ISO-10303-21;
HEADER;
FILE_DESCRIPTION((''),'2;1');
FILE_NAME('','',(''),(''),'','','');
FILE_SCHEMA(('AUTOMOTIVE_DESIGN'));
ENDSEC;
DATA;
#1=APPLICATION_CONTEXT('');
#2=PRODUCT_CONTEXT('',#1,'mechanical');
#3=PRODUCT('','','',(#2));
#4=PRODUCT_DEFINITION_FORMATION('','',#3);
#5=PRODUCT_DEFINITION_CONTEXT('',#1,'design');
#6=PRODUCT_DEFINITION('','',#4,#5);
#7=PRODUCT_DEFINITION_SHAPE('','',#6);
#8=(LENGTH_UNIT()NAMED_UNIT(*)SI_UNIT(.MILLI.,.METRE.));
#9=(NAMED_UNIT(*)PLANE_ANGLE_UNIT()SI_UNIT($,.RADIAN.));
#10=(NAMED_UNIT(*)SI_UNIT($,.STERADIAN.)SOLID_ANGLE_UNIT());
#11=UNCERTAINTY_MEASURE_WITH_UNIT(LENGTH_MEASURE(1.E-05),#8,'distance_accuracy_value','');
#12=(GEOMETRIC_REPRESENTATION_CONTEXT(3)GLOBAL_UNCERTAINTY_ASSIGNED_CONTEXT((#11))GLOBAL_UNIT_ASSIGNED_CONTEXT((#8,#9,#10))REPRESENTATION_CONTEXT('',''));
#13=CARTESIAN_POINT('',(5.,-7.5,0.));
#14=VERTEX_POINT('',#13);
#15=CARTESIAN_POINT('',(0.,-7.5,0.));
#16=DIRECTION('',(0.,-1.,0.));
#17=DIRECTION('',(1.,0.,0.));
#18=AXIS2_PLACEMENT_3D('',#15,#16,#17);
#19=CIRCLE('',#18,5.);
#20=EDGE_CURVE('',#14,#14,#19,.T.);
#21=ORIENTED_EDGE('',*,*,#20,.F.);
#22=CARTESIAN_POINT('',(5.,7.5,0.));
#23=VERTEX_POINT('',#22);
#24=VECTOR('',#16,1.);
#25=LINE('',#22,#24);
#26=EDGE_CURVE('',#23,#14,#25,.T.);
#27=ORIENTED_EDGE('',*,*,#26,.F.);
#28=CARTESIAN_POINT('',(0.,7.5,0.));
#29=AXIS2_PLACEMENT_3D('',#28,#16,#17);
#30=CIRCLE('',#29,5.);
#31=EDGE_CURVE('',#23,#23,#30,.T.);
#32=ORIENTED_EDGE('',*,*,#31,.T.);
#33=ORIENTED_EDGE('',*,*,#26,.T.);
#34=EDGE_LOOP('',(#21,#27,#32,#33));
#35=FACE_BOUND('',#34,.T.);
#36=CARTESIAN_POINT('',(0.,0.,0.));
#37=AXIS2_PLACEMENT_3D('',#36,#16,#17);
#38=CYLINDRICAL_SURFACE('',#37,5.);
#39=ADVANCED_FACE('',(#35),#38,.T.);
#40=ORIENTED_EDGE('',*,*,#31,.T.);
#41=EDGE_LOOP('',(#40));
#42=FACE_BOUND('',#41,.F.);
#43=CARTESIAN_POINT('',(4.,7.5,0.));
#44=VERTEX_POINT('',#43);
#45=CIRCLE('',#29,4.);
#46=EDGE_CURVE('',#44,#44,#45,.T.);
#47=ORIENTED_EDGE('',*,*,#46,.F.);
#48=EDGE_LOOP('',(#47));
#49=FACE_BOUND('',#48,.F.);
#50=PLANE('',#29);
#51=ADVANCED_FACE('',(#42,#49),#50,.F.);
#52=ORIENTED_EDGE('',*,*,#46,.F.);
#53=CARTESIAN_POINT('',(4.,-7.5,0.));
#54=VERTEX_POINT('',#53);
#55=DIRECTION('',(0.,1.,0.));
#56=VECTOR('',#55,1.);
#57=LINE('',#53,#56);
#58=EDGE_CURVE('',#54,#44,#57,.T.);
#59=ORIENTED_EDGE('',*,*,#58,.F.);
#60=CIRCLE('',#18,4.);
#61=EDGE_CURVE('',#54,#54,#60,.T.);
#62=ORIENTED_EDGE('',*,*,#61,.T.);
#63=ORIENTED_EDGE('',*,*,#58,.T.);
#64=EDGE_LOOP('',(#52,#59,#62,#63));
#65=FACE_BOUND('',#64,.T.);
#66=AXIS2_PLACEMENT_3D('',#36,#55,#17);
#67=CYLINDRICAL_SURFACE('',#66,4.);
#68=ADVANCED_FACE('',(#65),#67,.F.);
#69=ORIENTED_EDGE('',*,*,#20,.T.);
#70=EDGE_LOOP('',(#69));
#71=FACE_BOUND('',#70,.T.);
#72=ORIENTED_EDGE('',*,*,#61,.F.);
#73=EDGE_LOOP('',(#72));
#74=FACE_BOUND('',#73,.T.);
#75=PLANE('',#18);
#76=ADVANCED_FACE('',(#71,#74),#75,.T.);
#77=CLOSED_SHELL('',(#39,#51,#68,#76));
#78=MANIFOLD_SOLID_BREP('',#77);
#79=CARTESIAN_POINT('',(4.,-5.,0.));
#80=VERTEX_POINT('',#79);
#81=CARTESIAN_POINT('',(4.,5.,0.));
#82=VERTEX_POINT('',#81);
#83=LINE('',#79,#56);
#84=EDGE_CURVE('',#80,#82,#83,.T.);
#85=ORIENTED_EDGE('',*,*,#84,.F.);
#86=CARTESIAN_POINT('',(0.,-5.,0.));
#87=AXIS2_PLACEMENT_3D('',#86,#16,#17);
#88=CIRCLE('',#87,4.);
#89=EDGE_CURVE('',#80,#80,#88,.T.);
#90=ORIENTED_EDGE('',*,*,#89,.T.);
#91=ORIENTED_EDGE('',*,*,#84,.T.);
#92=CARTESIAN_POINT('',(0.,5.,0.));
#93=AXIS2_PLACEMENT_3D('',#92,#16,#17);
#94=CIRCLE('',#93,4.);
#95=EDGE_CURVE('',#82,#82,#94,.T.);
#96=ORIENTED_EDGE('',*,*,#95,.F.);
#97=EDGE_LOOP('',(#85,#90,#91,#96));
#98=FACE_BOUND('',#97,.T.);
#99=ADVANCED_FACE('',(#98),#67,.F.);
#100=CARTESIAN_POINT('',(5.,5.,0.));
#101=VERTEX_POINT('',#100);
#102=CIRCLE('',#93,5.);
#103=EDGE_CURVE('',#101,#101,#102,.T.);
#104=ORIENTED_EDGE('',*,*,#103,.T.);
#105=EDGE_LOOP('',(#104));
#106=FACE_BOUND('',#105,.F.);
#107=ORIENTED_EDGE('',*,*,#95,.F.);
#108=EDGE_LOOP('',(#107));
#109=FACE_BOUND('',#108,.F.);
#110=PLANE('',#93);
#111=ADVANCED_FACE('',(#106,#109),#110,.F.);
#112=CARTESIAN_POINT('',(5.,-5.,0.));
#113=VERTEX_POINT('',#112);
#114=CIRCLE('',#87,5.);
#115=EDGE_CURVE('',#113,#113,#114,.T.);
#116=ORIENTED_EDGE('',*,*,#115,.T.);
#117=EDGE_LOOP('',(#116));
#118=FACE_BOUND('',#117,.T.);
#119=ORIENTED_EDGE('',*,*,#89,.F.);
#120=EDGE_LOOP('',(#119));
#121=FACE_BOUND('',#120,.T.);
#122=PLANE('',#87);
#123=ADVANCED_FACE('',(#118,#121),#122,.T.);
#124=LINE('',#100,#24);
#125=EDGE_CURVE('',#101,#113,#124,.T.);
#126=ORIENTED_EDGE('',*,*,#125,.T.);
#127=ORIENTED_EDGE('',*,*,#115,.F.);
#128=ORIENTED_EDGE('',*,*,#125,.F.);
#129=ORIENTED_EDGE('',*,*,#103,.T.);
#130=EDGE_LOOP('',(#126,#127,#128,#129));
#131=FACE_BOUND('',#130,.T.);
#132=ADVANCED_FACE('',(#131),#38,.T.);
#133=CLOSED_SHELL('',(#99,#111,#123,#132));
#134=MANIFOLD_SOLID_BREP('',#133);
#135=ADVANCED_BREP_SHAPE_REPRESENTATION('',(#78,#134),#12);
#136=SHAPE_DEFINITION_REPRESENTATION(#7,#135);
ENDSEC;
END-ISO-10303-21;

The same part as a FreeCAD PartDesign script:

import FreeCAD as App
import Part
import Sketcher

V = App.Vector
Q = App.Units.Quantity

doc = App.newDocument("Part")
body = doc.addObject("PartDesign::Body", "Body")

sketch1 = doc.addObject("Sketcher::SketchObject", "Sketch")
body.addObject(sketch1)
sketch1.AttachmentSupport = (doc.XZ_Plane, [""])
sketch1.MapMode = "FlatFace"
sketch1.addGeometry([
    Part.Circle(V(0, 0, 0), V(0, 0, 1), 5),
    Part.Circle(V(0, 0, 0), V(0, 0, 1), 4),
], False)
sketch1.addConstraint([
    Sketcher.Constraint("Coincident", 0, 3, -1, 1),
    Sketcher.Constraint("Coincident", 1, 3, -1, 1),
    Sketcher.Constraint("Diameter", 0, Q("10 mm")),
    Sketcher.Constraint("Diameter", 1, Q("8 mm")),
])
pad1 = doc.addObject("PartDesign::Pad", "Pad")
body.addObject(pad1)
pad1.Profile = sketch1
pad1.Length = 10
pad1.Midplane = True
body2 = doc.addObject("PartDesign::Body", "Body001")

sketch2 = doc.addObject("Sketcher::SketchObject", "Sketch001")
body2.addObject(sketch2)
sketch2.AttachmentSupport = (doc.getObject("XZ_Plane001"), [""])
sketch2.MapMode = "FlatFace"
sketch2.addGeometry([
    Part.Circle(V(0, 0, 0), V(0, 0, 1), 5),
    Part.Circle(V(0, 0, 0), V(0, 0, 1), 4),
], False)
sketch2.addConstraint([
    Sketcher.Constraint("Coincident", 0, 3, -1, 1),
    Sketcher.Constraint("Coincident", 1, 3, -1, 1),
    Sketcher.Constraint("Diameter", 0, Q("10 mm")),
    Sketcher.Constraint("Diameter", 1, Q("8 mm")),
])
pad2 = doc.addObject("PartDesign::Pad", "Pad001")
body2.addObject(pad2)
pad2.Profile = sketch2
pad2.Length = 15
pad2.Midplane = True

doc.recompute()
